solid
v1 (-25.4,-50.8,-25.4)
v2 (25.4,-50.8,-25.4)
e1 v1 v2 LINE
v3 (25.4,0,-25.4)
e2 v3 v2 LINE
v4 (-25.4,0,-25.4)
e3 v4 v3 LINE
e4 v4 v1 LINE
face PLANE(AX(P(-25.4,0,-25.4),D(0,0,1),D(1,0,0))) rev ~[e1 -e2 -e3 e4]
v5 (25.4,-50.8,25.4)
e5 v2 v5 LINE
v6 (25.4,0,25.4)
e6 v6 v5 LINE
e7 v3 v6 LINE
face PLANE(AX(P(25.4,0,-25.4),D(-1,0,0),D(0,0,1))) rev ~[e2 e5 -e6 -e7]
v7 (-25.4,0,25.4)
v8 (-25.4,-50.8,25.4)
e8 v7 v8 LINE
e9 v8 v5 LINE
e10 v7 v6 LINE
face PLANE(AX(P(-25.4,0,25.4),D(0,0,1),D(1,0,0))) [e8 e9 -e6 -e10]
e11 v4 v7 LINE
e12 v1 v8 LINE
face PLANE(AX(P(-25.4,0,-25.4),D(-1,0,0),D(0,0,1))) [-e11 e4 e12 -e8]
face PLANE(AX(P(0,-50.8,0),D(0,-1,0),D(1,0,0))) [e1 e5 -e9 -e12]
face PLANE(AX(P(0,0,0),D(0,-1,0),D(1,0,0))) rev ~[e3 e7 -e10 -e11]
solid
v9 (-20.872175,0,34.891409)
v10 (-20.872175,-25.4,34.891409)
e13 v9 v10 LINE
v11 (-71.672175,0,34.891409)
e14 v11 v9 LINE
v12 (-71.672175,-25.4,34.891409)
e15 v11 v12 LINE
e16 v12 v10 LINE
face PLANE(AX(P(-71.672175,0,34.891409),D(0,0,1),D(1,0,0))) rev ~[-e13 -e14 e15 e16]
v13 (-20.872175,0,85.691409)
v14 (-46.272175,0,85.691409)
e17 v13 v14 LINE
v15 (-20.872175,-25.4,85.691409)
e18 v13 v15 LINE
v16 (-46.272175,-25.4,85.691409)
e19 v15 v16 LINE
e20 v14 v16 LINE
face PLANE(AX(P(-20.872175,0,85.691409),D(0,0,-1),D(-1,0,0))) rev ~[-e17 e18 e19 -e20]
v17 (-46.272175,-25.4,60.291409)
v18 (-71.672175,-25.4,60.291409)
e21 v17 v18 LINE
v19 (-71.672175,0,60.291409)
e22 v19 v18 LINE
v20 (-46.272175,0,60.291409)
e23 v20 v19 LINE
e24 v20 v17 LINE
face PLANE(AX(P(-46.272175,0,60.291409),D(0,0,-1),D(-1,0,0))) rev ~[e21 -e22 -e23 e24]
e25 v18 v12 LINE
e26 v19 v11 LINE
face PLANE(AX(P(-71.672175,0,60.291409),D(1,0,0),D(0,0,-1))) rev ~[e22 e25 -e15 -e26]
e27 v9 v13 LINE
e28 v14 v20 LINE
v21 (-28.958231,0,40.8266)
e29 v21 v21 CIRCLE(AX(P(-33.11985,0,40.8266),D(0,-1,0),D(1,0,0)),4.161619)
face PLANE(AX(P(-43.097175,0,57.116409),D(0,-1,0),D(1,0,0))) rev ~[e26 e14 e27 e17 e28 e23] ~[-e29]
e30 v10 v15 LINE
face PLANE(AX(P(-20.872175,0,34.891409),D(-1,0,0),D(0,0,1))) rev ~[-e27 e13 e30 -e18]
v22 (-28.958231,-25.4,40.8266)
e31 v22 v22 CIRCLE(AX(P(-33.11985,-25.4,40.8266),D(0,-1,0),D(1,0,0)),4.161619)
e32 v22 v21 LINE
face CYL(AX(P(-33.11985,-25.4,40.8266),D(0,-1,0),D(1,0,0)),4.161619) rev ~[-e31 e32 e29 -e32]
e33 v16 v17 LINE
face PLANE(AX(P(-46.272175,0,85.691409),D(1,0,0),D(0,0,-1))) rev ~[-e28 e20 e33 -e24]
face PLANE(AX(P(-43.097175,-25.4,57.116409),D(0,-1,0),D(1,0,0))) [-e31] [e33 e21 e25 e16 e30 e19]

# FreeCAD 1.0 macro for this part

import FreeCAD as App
import Part
import Sketcher
Q = App.Units.Quantity

doc = App.newDocument("Part")
body = doc.addObject("PartDesign::Body", "Body")

sketch1 = doc.addObject("Sketcher::SketchObject", "Sketch")
body.addObject(sketch1)
sketch1.AttachmentSupport = (doc.XZ_Plane, [""])
sketch1.MapMode = "FlatFace"
sketch1.addGeometry([
    Part.LineSegment(App.Vector(-25, 25, 0), App.Vector(-25, -25, 0)),
    Part.LineSegment(App.Vector(-25, -25, 0), App.Vector(25, -25, 0)),
    Part.LineSegment(App.Vector(25, -25, 0), App.Vector(25, 25, 0)),
    Part.LineSegment(App.Vector(25, 25, 0), App.Vector(-25, 25, 0)),
], False)
sketch1.addConstraint([
    Sketcher.Constraint("Coincident", 0, 2, 1, 1),
    Sketcher.Constraint("Coincident", 1, 2, 2, 1),
    Sketcher.Constraint("Coincident", 2, 2, 3, 1),
    Sketcher.Constraint("Coincident", 3, 2, 0, 1),
    Sketcher.Constraint("Vertical", 0),
    Sketcher.Constraint("Horizontal", 1),
    Sketcher.Constraint("Vertical", 2),
    Sketcher.Constraint("Horizontal", 3),
    Sketcher.Constraint("Symmetric", 0, 2, 2, 2, -1, 1),
    Sketcher.Constraint("Equal", 3, 0),
    Sketcher.Constraint("DistanceX", 1, 1, 1, 2, Q("2 in")),
])
pad1 = doc.addObject("PartDesign::Pad", "Pad")
body.addObject(pad1)
pad1.Profile = sketch1
pad1.Length = Q("2 in")
body2 = doc.addObject("PartDesign::Body", "Body001")

sketch2 = doc.addObject("Sketcher::SketchObject", "Sketch001")
body2.addObject(sketch2)
sketch2.AttachmentSupport = (doc.getObject("XZ_Plane001"), [""])
sketch2.MapMode = "FlatFace"
sketch2.addGeometry([
    Part.LineSegment(App.Vector(-46, 60, 0), App.Vector(-72, 60, 0)),
    Part.LineSegment(App.Vector(-72, 60, 0), App.Vector(-72, 35, 0)),
    Part.LineSegment(App.Vector(-72, 35, 0), App.Vector(-21, 35, 0)),
    Part.LineSegment(App.Vector(-21, 35, 0), App.Vector(-21, 86, 0)),
    Part.LineSegment(App.Vector(-21, 86, 0), App.Vector(-46, 86, 0)),
    Part.LineSegment(App.Vector(-46, 86, 0), App.Vector(-46, 60, 0)),
], False)
sketch2.addConstraint([
    Sketcher.Constraint("Coincident", 0, 2, 1, 1),
    Sketcher.Constraint("Coincident", 1, 2, 2, 1),
    Sketcher.Constraint("Coincident", 2, 2, 3, 1),
    Sketcher.Constraint("Coincident", 3, 2, 4, 1),
    Sketcher.Constraint("Coincident", 4, 2, 5, 1),
    Sketcher.Constraint("Coincident", 5, 2, 0, 1),
    Sketcher.Constraint("Horizontal", 0),
    Sketcher.Constraint("Vertical", 1),
    Sketcher.Constraint("Horizontal", 2),
    Sketcher.Constraint("Vertical", 3),
    Sketcher.Constraint("Horizontal", 4),
    Sketcher.Constraint("Vertical", 5),
    Sketcher.Constraint("Equal", 0, 4),
    Sketcher.Constraint("Equal", 4, 1),
    Sketcher.Constraint("Equal", 2, 3),
    Sketcher.Constraint("DistanceX", 0, 2, 0, 1, Q("1 in")),
    Sketcher.Constraint("DistanceY", -1, 1, 0, 2, 60.291409),
    Sketcher.Constraint("DistanceX", 0, 2, -1, 1, 71.672175),
])
pad2 = doc.addObject("PartDesign::Pad", "Pad001")
body2.addObject(pad2)
pad2.Profile = sketch2
pad2.Length = Q("1 in")

sketch3 = doc.addObject("Sketcher::SketchObject", "Sketch002")
body2.addObject(sketch3)
sketch3.AttachmentSupport = (doc.getObject("XZ_Plane001"), [""])
sketch3.MapMode = "FlatFace"
sketch3.AttachmentOffset = App.Placement(App.Vector(0, 0, 1 * 25.4), App.Rotation())
sketch3.addGeometry(Part.Circle(App.Vector(-33.1, 40.8, 0), App.Vector(0, 0, 1), 4.2), False)
sketch3.addConstraint([
    Sketcher.Constraint("Diameter", 0, 8.323238),
    Sketcher.Constraint("DistanceY", -1, 1, 0, 3, 40.8266),
    Sketcher.Constraint("DistanceX", 0, 3, -1, 1, 33.11985),
])
pocket1 = doc.addObject("PartDesign::Pocket", "Pocket")
body2.addObject(pocket1)
pocket1.Profile = sketch3
pocket1.Length = Q("2.99 in")

doc.recompute()
